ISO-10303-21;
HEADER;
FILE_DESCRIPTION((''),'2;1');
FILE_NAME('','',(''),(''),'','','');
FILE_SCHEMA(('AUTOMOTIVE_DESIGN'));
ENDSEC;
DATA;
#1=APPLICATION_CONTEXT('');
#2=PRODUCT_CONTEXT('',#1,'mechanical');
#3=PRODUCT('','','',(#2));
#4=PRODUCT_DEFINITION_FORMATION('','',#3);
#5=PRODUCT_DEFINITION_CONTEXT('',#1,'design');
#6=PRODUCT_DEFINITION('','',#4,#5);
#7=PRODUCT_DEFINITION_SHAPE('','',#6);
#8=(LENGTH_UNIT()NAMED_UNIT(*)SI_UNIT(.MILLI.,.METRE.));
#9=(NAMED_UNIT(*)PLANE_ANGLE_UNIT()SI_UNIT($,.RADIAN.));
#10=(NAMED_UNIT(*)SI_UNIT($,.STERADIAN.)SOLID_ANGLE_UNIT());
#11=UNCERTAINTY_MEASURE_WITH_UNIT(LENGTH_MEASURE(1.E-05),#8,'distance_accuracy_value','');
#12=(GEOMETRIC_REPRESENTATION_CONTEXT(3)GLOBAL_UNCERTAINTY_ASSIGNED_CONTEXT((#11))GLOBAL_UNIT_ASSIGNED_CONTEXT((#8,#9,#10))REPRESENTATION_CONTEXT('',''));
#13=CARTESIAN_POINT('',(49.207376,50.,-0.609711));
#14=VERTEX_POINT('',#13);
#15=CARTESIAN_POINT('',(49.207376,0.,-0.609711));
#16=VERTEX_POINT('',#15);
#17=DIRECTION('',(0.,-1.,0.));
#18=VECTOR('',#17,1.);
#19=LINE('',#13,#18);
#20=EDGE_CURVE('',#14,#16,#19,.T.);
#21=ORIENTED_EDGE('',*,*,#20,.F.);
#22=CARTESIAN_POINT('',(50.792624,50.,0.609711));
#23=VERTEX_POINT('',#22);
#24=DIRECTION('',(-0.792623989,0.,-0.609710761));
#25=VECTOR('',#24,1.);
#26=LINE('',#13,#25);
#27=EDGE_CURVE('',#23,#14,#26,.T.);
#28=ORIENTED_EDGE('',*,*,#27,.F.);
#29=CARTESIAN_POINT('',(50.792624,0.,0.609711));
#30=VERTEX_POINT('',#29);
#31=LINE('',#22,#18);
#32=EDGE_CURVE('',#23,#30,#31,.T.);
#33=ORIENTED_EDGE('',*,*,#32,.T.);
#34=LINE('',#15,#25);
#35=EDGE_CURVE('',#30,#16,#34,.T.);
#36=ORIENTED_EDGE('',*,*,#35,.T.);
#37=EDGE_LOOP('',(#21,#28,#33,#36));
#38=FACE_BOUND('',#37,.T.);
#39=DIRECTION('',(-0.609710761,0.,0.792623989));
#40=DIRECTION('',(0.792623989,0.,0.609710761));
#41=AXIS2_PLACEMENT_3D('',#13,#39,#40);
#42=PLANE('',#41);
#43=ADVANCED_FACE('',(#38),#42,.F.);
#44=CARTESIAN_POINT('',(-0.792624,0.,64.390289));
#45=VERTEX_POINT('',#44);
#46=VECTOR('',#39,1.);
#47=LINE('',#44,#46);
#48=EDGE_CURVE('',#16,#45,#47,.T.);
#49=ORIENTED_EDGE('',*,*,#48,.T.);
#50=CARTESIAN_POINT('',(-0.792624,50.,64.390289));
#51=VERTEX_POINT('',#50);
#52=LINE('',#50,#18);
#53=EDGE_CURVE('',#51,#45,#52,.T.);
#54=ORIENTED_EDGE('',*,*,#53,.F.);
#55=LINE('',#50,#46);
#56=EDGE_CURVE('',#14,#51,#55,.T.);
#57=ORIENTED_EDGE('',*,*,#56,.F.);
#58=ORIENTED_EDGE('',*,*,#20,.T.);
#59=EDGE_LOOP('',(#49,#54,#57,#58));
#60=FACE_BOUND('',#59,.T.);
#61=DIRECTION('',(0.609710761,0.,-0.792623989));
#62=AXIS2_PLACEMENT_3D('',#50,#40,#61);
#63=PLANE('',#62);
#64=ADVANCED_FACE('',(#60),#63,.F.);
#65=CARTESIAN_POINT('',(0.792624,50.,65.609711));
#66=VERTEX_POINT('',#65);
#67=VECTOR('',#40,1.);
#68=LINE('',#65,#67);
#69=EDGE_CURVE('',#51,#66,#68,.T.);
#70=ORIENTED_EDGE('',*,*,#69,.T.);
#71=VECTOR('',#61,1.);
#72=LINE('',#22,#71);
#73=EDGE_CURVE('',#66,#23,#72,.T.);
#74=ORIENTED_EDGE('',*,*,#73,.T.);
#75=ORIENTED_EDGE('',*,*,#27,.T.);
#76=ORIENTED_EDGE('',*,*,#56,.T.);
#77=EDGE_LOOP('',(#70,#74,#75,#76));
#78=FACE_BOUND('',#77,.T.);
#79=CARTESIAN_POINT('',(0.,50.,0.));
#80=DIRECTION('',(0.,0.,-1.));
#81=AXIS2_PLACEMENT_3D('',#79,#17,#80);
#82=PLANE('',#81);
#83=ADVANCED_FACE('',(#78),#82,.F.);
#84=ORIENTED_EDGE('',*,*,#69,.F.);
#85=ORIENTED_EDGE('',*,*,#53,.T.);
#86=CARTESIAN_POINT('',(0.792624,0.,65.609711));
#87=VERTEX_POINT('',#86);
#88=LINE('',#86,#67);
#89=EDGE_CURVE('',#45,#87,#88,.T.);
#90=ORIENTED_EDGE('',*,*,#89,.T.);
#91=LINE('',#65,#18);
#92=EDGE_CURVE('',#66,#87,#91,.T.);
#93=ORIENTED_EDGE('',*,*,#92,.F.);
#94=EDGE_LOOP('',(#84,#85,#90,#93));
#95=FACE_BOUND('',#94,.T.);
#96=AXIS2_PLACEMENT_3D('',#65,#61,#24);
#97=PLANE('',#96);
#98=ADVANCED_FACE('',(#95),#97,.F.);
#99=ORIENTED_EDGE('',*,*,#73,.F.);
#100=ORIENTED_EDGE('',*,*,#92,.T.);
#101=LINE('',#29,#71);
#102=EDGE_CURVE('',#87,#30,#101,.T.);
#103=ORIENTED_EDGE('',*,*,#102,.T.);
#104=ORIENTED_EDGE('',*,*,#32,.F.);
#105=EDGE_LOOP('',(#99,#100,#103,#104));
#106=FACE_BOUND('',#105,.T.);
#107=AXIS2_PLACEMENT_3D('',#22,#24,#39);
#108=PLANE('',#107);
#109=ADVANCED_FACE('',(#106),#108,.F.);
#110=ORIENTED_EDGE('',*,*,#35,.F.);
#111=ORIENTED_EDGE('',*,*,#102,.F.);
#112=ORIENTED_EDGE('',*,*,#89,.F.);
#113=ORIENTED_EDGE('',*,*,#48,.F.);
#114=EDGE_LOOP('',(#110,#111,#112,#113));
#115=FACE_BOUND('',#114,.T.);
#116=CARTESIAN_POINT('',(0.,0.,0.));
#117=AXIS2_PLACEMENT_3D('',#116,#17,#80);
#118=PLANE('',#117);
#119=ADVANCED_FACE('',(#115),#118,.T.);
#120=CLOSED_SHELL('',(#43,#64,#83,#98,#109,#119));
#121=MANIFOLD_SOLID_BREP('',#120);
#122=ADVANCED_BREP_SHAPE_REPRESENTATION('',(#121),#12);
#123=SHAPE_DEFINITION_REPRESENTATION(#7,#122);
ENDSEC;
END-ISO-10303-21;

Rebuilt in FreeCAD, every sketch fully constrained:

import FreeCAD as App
import Part
import Sketcher
from FreeCAD import Vector

doc = App.newDocument("Part")
params = doc.addObject("Spreadsheet::Sheet", "Params")
for row, (alias, value) in enumerate([
    ("sketch1_length", "2 mm"),
    ("pad1_length", "50 mm"),
], start=1):
    params.set(f"A{row}", alias)
    params.set(f"B{row}", "=" + value)
    params.setAlias(f"B{row}", alias)

body = doc.addObject("PartDesign::Body", "Body")

# Sketch on XZ plane
sketch1 = body.newObject("Sketcher::SketchObject", "Sketch")
sketch1.AttachmentSupport = (doc.getObject("XZ_Plane"), [""])
sketch1.MapMode = "FlatFace"
sketch1.addGeometry([
    Part.LineSegment(Vector(49.2, -0.6, 0), Vector(-0.8, 64.4, 0)),
    Part.LineSegment(Vector(-0.8, 64.4, 0), Vector(0.8, 65.6, 0)),
    Part.LineSegment(Vector(0.8, 65.6, 0), Vector(50.8, 0.6, 0)),
    Part.LineSegment(Vector(50.8, 0.6, 0), Vector(49.2, -0.6, 0)),
], False)
sketch1.addConstraint([
    Sketcher.Constraint("Coincident", 0, 2, 1, 1),
    Sketcher.Constraint("Coincident", 1, 2, 2, 1),
    Sketcher.Constraint("Coincident", 2, 2, 3, 1),
    Sketcher.Constraint("Coincident", 3, 2, 0, 1),
    Sketcher.Constraint("Perpendicular", 0, 1),
    Sketcher.Constraint("Perpendicular", 1, 2),
    Sketcher.Constraint("Perpendicular", 2, 3),
    Sketcher.Constraint("Distance", 1, 2.0),
    Sketcher.Constraint("DistanceX", 1, 2, 2, 2, 50.0),
    Sketcher.Constraint("DistanceY", 2, 2, 1, 2, 65.0),
    Sketcher.Constraint("DistanceY", -1, 1, 0, 2, 64.390289),
    Sketcher.Constraint("DistanceX", 0, 2, -1, 1, 0.792624),
])
sketch1.setExpression("Constraints[7]", "Params.sketch1_length")
pad1 = body.newObject("PartDesign::Pad", "Pad")
pad1.Profile = sketch1
pad1.setExpression("Length", "Params.pad1_length")
pad1.Reversed = True

doc.recompute()
